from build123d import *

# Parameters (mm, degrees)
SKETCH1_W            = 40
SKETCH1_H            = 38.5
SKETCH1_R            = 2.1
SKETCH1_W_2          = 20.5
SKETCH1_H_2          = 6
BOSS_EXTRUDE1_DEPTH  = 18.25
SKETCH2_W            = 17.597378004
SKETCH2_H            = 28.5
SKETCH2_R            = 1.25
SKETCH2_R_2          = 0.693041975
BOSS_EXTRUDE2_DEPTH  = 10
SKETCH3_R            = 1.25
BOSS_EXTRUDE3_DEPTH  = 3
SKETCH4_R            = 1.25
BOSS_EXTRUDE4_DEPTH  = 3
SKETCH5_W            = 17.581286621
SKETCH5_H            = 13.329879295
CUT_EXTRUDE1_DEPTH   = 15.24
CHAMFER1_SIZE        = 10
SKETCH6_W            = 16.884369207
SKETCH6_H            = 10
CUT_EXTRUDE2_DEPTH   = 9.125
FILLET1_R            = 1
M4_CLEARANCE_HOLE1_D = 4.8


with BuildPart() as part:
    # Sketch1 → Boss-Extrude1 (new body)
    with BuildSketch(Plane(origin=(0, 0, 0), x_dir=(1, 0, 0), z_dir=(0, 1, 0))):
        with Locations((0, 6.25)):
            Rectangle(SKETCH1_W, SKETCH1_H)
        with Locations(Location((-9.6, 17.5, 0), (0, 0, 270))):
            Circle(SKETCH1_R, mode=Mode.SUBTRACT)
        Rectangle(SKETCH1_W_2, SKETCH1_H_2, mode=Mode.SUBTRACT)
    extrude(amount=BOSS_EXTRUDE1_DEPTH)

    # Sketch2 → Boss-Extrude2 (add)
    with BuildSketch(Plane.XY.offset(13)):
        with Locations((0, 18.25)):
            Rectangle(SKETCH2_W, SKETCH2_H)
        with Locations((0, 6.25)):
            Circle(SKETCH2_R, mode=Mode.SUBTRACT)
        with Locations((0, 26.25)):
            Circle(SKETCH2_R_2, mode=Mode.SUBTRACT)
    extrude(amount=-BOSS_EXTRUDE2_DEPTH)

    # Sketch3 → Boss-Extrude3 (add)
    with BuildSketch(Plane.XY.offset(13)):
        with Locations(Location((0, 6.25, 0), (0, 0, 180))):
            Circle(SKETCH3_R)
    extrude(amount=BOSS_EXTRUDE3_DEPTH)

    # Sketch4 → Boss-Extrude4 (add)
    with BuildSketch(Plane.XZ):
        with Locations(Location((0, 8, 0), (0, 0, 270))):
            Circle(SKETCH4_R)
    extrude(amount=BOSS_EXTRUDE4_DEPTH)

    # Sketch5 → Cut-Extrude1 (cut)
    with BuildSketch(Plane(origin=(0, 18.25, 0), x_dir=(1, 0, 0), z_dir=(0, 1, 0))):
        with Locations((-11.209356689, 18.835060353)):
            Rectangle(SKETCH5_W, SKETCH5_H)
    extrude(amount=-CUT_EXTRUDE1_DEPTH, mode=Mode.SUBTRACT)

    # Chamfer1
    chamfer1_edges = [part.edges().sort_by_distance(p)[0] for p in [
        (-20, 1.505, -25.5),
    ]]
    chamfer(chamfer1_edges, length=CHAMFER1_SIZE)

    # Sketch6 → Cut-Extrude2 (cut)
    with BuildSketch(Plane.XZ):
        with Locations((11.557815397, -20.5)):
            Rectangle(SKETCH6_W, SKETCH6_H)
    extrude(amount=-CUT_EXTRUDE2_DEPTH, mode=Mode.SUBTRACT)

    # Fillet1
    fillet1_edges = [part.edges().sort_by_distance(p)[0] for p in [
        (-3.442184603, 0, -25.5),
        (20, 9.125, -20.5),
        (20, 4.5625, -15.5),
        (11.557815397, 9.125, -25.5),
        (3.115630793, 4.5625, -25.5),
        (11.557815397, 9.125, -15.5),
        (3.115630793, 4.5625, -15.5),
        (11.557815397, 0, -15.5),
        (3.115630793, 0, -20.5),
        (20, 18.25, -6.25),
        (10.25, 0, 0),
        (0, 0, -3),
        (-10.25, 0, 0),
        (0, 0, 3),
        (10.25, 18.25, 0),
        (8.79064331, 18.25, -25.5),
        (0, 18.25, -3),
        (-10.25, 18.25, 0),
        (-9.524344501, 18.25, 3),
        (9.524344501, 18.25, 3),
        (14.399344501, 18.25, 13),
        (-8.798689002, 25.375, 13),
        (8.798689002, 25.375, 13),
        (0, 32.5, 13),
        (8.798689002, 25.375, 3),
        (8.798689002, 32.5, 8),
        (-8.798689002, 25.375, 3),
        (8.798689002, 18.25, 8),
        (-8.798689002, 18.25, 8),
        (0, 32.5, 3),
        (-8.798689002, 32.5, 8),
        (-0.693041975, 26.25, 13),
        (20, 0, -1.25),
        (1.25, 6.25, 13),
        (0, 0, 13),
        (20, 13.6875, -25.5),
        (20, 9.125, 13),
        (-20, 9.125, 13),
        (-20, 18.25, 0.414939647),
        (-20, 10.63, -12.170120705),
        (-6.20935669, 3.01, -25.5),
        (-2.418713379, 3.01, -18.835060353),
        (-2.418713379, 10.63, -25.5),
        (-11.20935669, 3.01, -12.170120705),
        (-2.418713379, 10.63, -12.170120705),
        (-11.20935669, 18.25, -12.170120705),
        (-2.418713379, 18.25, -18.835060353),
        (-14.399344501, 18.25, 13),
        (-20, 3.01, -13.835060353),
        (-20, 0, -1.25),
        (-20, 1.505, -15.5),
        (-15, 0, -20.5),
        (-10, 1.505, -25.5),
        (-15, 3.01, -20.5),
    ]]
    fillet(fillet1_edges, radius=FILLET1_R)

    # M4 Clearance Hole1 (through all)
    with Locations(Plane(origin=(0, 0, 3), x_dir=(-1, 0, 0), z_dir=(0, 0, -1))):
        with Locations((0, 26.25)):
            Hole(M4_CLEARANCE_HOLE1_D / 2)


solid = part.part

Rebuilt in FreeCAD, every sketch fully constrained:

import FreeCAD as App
import Part
import Sketcher
from FreeCAD import Vector
Q = App.Units.Quantity


def edges_at(feature, points):
    """Names of the edges that pass closest to the given points."""
    edges = feature.Shape.Edges
    near = lambda p: min(range(len(edges)), key=lambda i: edges[i].distToShape(Part.Vertex(*p))[0])
    return sorted({f"Edge{near(p) + 1}" for p in points})


def add_polygon(sketch, points):
    """Adds a closed chain of lines whose ends are joined by coincident constraints."""
    first, n = sketch.GeometryCount, len(points)
    for a, b in zip(points, points[1:] + points[:1]):
        sketch.addGeometry(Part.LineSegment(App.Vector(*a, 0), App.Vector(*b, 0)), False)
    for i in range(n):
        sketch.addConstraint(Sketcher.Constraint("Coincident", first + i, 2, first + (i + 1) % n, 1))

doc = App.newDocument("Part")
body = doc.addObject("PartDesign::Body", "Body")

# Sketch on XZ plane
sketch1 = body.newObject("Sketcher::SketchObject", "Sketch")
sketch1.AttachmentSupport = (doc.getObject("XZ_Plane"), [""])
sketch1.MapMode = "FlatFace"
add_polygon(sketch1, [(-20, -25.5), (-20, 13), (20, 13), (20, -25.5)])  # lines 0-3
add_polygon(sketch1, [(10.2, 3), (-10.2, 3), (-10.2, -3), (10.2, -3)])  # lines 4-7
sketch1.addGeometry(Part.Circle(Vector(-9.6, -17.5, 0), Vector(0, 0, 1), 2.1), False)  # 8
sketch1.addConstraint([
    Sketcher.Constraint("Vertical", 0),
    Sketcher.Constraint("Horizontal", 1),
    Sketcher.Constraint("Vertical", 2),
    Sketcher.Constraint("Horizontal", 3),
    Sketcher.Constraint("Horizontal", 4),
    Sketcher.Constraint("Vertical", 5),
    Sketcher.Constraint("Horizontal", 6),
    Sketcher.Constraint("Vertical", 7),
    Sketcher.Constraint("Symmetric", 4, 2, 6, 2, -1, 1),
    Sketcher.Constraint("Diameter", 8, Q("4.2 mm")),
    Sketcher.Constraint("DistanceX", 1, 1, 1, 2, Q("40 mm")),
    Sketcher.Constraint("DistanceY", 5, 2, 5, 1, Q("6 mm")),
    Sketcher.Constraint("DistanceX", 4, 2, 4, 1, Q("20.5 mm")),
    Sketcher.Constraint("DistanceY", 0, 1, 0, 2, Q("38.5 mm")),
    Sketcher.Constraint("DistanceX", 0, 2, -1, 1, Q("20 mm")),
    Sketcher.Constraint("DistanceY", -1, 1, 0, 2, Q("13 mm")),
    Sketcher.Constraint("DistanceY", 2, 2, 8, 3, Q("8 mm")),
    Sketcher.Constraint("DistanceX", 8, 3, -1, 1, Q("9.6 mm")),
])
pad1 = body.newObject("PartDesign::Pad", "Pad")
pad1.Profile = sketch1
pad1.Length = 18.25
pad1.Reversed = True

# Sketch on XY plane
sketch2 = body.newObject("Sketcher::SketchObject", "Sketch001")
sketch2.AttachmentSupport = (doc.getObject("XY_Plane"), [""])
sketch2.MapMode = "FlatFace"
sketch2.AttachmentOffset = App.Placement(Vector(0, 0, 13), App.Rotation())
add_polygon(sketch2, [(-8.8, 32.5), (-8.8, 4), (8.8, 4), (8.8, 32.5)])  # lines 0-3
sketch2.addGeometry(Part.Circle(Vector(0, 6.2, 0), Vector(0, 0, 1), 1.2), False)  # 4
sketch2.addGeometry(Part.Circle(Vector(0, 26.2, 0), Vector(0, 0, 1), 0.7), False)  # 5
sketch2.addConstraint([
    Sketcher.Constraint("Vertical", 0),
    Sketcher.Constraint("Horizontal", 1),
    Sketcher.Constraint("Vertical", 2),
    Sketcher.Constraint("Horizontal", 3),
    Sketcher.Constraint("PointOnObject", 4, 3, -2),
    Sketcher.Constraint("PointOnObject", 5, 3, -2),
    Sketcher.Constraint("Diameter", 4, Q("2.5 mm")),
    Sketcher.Constraint("DistanceY", 0, 2, 0, 1, Q("28.5 mm")),
    Sketcher.Constraint("DistanceY", -1, 1, 0, 2, Q("4 mm")),
    Sketcher.Constraint("DistanceY", 4, 3, 5, 3, Q("20 mm")),
    Sketcher.Constraint("DistanceY", -1, 1, 4, 3, Q("6.25 mm")),
    Sketcher.Constraint("Diameter", 5, Q("1.386084 mm")),
    Sketcher.Constraint("DistanceX", 1, 1, 1, 2, Q("17.597378 mm")),
    Sketcher.Constraint("DistanceX", 0, 2, -1, 1, Q("8.798689 mm")),
])
pad2 = body.newObject("PartDesign::Pad", "Pad001")
pad2.Profile = sketch2
pad2.Length = 10
pad2.Reversed = True

# Sketch on XY plane
sketch3 = body.newObject("Sketcher::SketchObject", "Sketch002")
sketch3.AttachmentSupport = (doc.getObject("XY_Plane"), [""])
sketch3.MapMode = "FlatFace"
sketch3.AttachmentOffset = App.Placement(Vector(0, 0, 13), App.Rotation())
sketch3.addGeometry(Part.Circle(Vector(0, 6.2, 0), Vector(0, 0, 1), 1.2), False)
sketch3.addConstraint([
    Sketcher.Constraint("PointOnObject", 0, 3, -2),
    Sketcher.Constraint("Diameter", 0, Q("2.5 mm")),
    Sketcher.Constraint("DistanceY", -1, 1, 0, 3, Q("6.25 mm")),
])
pad3 = body.newObject("PartDesign::Pad", "Pad002")
pad3.Profile = sketch3
pad3.Length = 3

# Sketch on XZ plane
sketch4 = body.newObject("Sketcher::SketchObject", "Sketch003")
sketch4.AttachmentSupport = (doc.getObject("XZ_Plane"), [""])
sketch4.MapMode = "FlatFace"
sketch4.addGeometry(Part.Circle(Vector(0, 8, 0), Vector(0, 0, 1), 1.2), False)
sketch4.addConstraint([
    Sketcher.Constraint("PointOnObject", 0, 3, -2),
    Sketcher.Constraint("Diameter", 0, Q("2.5 mm")),
    Sketcher.Constraint("DistanceY", -1, 1, 0, 3, Q("8 mm")),
])
pad4 = body.newObject("PartDesign::Pad", "Pad003")
pad4.Profile = sketch4
pad4.Length = 3

# Sketch on XZ plane
sketch5 = body.newObject("Sketcher::SketchObject", "Sketch004")
sketch5.AttachmentSupport = (doc.getObject("XZ_Plane"), [""])
sketch5.MapMode = "FlatFace"
sketch5.AttachmentOffset = App.Placement(Vector(0, 0, -18.25), App.Rotation())
add_polygon(sketch5, [(-20, -26), (-20, -12), (-2, -12), (-2, -26)])  # lines 0-3
sketch5.addConstraint([
    Sketcher.Constraint("Vertical", 0),
    Sketcher.Constraint("Horizontal", 1),
    Sketcher.Constraint("Vertical", 2),
    Sketcher.Constraint("Horizontal", 3),
    Sketcher.Constraint("DistanceX", 0, 2, -1, 1, Q("20 mm")),
    Sketcher.Constraint("DistanceY", 2, 2, -1, 1, Q("25.5 mm")),
    Sketcher.Constraint("DistanceY", 0, 1, 0, 2, Q("13.329879 mm")),
    Sketcher.Constraint("DistanceX", 1, 1, 1, 2, Q("17.581287 mm")),
])
pocket1 = body.newObject("PartDesign::Pocket", "Pocket")
pocket1.Profile = sketch5
pocket1.Length = 15.24
pocket1.Reversed = True
doc.recompute()

chamfer = body.newObject("PartDesign::Chamfer", "Chamfer")
chamfer.Base = (pocket1, edges_at(pocket1, [(-20, 1.505, -25.5)]))
chamfer.Size = 10

# Sketch on XZ plane
sketch6 = body.newObject("Sketcher::SketchObject", "Sketch005")
sketch6.AttachmentSupport = (doc.getObject("XZ_Plane"), [""])
sketch6.MapMode = "FlatFace"
add_polygon(sketch6, [(3, -16), (3, -26), (20, -26), (20, -16)])  # lines 0-3
sketch6.addConstraint([
    Sketcher.Constraint("Vertical", 0),
    Sketcher.Constraint("Horizontal", 1),
    Sketcher.Constraint("Vertical", 2),
    Sketcher.Constraint("Horizontal", 3),
    Sketcher.Constraint("DistanceY", 0, 2, 0, 1, Q("10 mm")),
    Sketcher.Constraint("DistanceX", -1, 1, 1, 2, Q("20 mm")),
    Sketcher.Constraint("DistanceY", 0, 2, -1, 1, Q("25.5 mm")),
    Sketcher.Constraint("DistanceX", 1, 1, 1, 2, Q("16.884369 mm")),
])
pocket2 = body.newObject("PartDesign::Pocket", "Pocket001")
pocket2.Profile = sketch6
pocket2.Length = 9.125
doc.recompute()

fillet = body.newObject("PartDesign::Fillet", "Fillet")
fillet.Base = (pocket2, edges_at(pocket2, [
    (-3.442, 0, -25.5),
    (20, 9.125, -20.5),
    (20, 4.562, -15.5),
    (11.558, 9.125, -25.5),
    (3.116, 4.562, -25.5),
    (11.558, 9.125, -15.5),
    (3.116, 4.562, -15.5),
    (11.558, 0, -15.5),
    (3.116, 0, -20.5),
    (20, 18.25, -6.25),
    (10.25, 0, 0),
    (0, 0, -3),
    (-10.25, 0, 0),
    (0, 0, 3),
    (10.25, 18.25, 0),
    (8.791, 18.25, -25.5),
    (0, 18.25, -3),
    (-10.25, 18.25, 0),
    (-9.524, 18.25, 3),
    (9.524, 18.25, 3),
    (14.399, 18.25, 13),
    (-8.799, 25.375, 13),
    (8.799, 25.375, 13),
    (0, 32.5, 13),
    (8.799, 25.375, 3),
    (8.799, 32.5, 8),
    (-8.799, 25.375, 3),
    (8.799, 18.25, 8),
    (-8.799, 18.25, 8),
    (0, 32.5, 3),
    (-8.799, 32.5, 8),
    (-0.693, 26.25, 13),
    (20, 0, -1.25),
    (1.25, 6.25, 13),
    (0, 0, 13),
    (20, 13.688, -25.5),
    (20, 9.125, 13),
    (-20, 9.125, 13),
    (-20, 18.25, 0.415),
    (-20, 10.63, -12.17),
    (-6.209, 3.01, -25.5),
    (-2.419, 3.01, -18.835),
    (-2.419, 10.63, -25.5),
    (-11.209, 3.01, -12.17),
    (-2.419, 10.63, -12.17),
    (-11.209, 18.25, -12.17),
    (-2.419, 18.25, -18.835),
    (-14.399, 18.25, 13),
    (-20, 3.01, -13.835),
    (-20, 0, -1.25),
    (-20, 1.505, -15.5),
    (-15, 0, -20.5),
    (-10, 1.505, -25.5),
    (-15, 3.01, -20.5),
]))
fillet.Radius = 1

# Sketch on XY plane
sketch7 = body.newObject("Sketcher::SketchObject", "Sketch006")
sketch7.AttachmentSupport = (doc.getObject("XY_Plane"), [""])
sketch7.MapMode = "FlatFace"
sketch7.AttachmentOffset = App.Placement(Vector(0, 0, 3), App.Rotation())
sketch7.addGeometry(Part.Circle(Vector(0, 26.2, 0), Vector(0, 0, 1), 2.4), False)
sketch7.addConstraint([
    Sketcher.Constraint("PointOnObject", 0, 3, -2),
    Sketcher.Constraint("Diameter", 0, Q("4.8 mm")),
    Sketcher.Constraint("DistanceY", -1, 1, 0, 3, Q("26.25 mm")),
])
doc.recompute()
hole = body.newObject("PartDesign::Hole", "Hole")
hole.Profile = sketch7
hole.ThreadType = "None"
hole.Diameter = 4.8
hole.DepthType = "ThroughAll"
hole.Reversed = True

doc.recompute()
